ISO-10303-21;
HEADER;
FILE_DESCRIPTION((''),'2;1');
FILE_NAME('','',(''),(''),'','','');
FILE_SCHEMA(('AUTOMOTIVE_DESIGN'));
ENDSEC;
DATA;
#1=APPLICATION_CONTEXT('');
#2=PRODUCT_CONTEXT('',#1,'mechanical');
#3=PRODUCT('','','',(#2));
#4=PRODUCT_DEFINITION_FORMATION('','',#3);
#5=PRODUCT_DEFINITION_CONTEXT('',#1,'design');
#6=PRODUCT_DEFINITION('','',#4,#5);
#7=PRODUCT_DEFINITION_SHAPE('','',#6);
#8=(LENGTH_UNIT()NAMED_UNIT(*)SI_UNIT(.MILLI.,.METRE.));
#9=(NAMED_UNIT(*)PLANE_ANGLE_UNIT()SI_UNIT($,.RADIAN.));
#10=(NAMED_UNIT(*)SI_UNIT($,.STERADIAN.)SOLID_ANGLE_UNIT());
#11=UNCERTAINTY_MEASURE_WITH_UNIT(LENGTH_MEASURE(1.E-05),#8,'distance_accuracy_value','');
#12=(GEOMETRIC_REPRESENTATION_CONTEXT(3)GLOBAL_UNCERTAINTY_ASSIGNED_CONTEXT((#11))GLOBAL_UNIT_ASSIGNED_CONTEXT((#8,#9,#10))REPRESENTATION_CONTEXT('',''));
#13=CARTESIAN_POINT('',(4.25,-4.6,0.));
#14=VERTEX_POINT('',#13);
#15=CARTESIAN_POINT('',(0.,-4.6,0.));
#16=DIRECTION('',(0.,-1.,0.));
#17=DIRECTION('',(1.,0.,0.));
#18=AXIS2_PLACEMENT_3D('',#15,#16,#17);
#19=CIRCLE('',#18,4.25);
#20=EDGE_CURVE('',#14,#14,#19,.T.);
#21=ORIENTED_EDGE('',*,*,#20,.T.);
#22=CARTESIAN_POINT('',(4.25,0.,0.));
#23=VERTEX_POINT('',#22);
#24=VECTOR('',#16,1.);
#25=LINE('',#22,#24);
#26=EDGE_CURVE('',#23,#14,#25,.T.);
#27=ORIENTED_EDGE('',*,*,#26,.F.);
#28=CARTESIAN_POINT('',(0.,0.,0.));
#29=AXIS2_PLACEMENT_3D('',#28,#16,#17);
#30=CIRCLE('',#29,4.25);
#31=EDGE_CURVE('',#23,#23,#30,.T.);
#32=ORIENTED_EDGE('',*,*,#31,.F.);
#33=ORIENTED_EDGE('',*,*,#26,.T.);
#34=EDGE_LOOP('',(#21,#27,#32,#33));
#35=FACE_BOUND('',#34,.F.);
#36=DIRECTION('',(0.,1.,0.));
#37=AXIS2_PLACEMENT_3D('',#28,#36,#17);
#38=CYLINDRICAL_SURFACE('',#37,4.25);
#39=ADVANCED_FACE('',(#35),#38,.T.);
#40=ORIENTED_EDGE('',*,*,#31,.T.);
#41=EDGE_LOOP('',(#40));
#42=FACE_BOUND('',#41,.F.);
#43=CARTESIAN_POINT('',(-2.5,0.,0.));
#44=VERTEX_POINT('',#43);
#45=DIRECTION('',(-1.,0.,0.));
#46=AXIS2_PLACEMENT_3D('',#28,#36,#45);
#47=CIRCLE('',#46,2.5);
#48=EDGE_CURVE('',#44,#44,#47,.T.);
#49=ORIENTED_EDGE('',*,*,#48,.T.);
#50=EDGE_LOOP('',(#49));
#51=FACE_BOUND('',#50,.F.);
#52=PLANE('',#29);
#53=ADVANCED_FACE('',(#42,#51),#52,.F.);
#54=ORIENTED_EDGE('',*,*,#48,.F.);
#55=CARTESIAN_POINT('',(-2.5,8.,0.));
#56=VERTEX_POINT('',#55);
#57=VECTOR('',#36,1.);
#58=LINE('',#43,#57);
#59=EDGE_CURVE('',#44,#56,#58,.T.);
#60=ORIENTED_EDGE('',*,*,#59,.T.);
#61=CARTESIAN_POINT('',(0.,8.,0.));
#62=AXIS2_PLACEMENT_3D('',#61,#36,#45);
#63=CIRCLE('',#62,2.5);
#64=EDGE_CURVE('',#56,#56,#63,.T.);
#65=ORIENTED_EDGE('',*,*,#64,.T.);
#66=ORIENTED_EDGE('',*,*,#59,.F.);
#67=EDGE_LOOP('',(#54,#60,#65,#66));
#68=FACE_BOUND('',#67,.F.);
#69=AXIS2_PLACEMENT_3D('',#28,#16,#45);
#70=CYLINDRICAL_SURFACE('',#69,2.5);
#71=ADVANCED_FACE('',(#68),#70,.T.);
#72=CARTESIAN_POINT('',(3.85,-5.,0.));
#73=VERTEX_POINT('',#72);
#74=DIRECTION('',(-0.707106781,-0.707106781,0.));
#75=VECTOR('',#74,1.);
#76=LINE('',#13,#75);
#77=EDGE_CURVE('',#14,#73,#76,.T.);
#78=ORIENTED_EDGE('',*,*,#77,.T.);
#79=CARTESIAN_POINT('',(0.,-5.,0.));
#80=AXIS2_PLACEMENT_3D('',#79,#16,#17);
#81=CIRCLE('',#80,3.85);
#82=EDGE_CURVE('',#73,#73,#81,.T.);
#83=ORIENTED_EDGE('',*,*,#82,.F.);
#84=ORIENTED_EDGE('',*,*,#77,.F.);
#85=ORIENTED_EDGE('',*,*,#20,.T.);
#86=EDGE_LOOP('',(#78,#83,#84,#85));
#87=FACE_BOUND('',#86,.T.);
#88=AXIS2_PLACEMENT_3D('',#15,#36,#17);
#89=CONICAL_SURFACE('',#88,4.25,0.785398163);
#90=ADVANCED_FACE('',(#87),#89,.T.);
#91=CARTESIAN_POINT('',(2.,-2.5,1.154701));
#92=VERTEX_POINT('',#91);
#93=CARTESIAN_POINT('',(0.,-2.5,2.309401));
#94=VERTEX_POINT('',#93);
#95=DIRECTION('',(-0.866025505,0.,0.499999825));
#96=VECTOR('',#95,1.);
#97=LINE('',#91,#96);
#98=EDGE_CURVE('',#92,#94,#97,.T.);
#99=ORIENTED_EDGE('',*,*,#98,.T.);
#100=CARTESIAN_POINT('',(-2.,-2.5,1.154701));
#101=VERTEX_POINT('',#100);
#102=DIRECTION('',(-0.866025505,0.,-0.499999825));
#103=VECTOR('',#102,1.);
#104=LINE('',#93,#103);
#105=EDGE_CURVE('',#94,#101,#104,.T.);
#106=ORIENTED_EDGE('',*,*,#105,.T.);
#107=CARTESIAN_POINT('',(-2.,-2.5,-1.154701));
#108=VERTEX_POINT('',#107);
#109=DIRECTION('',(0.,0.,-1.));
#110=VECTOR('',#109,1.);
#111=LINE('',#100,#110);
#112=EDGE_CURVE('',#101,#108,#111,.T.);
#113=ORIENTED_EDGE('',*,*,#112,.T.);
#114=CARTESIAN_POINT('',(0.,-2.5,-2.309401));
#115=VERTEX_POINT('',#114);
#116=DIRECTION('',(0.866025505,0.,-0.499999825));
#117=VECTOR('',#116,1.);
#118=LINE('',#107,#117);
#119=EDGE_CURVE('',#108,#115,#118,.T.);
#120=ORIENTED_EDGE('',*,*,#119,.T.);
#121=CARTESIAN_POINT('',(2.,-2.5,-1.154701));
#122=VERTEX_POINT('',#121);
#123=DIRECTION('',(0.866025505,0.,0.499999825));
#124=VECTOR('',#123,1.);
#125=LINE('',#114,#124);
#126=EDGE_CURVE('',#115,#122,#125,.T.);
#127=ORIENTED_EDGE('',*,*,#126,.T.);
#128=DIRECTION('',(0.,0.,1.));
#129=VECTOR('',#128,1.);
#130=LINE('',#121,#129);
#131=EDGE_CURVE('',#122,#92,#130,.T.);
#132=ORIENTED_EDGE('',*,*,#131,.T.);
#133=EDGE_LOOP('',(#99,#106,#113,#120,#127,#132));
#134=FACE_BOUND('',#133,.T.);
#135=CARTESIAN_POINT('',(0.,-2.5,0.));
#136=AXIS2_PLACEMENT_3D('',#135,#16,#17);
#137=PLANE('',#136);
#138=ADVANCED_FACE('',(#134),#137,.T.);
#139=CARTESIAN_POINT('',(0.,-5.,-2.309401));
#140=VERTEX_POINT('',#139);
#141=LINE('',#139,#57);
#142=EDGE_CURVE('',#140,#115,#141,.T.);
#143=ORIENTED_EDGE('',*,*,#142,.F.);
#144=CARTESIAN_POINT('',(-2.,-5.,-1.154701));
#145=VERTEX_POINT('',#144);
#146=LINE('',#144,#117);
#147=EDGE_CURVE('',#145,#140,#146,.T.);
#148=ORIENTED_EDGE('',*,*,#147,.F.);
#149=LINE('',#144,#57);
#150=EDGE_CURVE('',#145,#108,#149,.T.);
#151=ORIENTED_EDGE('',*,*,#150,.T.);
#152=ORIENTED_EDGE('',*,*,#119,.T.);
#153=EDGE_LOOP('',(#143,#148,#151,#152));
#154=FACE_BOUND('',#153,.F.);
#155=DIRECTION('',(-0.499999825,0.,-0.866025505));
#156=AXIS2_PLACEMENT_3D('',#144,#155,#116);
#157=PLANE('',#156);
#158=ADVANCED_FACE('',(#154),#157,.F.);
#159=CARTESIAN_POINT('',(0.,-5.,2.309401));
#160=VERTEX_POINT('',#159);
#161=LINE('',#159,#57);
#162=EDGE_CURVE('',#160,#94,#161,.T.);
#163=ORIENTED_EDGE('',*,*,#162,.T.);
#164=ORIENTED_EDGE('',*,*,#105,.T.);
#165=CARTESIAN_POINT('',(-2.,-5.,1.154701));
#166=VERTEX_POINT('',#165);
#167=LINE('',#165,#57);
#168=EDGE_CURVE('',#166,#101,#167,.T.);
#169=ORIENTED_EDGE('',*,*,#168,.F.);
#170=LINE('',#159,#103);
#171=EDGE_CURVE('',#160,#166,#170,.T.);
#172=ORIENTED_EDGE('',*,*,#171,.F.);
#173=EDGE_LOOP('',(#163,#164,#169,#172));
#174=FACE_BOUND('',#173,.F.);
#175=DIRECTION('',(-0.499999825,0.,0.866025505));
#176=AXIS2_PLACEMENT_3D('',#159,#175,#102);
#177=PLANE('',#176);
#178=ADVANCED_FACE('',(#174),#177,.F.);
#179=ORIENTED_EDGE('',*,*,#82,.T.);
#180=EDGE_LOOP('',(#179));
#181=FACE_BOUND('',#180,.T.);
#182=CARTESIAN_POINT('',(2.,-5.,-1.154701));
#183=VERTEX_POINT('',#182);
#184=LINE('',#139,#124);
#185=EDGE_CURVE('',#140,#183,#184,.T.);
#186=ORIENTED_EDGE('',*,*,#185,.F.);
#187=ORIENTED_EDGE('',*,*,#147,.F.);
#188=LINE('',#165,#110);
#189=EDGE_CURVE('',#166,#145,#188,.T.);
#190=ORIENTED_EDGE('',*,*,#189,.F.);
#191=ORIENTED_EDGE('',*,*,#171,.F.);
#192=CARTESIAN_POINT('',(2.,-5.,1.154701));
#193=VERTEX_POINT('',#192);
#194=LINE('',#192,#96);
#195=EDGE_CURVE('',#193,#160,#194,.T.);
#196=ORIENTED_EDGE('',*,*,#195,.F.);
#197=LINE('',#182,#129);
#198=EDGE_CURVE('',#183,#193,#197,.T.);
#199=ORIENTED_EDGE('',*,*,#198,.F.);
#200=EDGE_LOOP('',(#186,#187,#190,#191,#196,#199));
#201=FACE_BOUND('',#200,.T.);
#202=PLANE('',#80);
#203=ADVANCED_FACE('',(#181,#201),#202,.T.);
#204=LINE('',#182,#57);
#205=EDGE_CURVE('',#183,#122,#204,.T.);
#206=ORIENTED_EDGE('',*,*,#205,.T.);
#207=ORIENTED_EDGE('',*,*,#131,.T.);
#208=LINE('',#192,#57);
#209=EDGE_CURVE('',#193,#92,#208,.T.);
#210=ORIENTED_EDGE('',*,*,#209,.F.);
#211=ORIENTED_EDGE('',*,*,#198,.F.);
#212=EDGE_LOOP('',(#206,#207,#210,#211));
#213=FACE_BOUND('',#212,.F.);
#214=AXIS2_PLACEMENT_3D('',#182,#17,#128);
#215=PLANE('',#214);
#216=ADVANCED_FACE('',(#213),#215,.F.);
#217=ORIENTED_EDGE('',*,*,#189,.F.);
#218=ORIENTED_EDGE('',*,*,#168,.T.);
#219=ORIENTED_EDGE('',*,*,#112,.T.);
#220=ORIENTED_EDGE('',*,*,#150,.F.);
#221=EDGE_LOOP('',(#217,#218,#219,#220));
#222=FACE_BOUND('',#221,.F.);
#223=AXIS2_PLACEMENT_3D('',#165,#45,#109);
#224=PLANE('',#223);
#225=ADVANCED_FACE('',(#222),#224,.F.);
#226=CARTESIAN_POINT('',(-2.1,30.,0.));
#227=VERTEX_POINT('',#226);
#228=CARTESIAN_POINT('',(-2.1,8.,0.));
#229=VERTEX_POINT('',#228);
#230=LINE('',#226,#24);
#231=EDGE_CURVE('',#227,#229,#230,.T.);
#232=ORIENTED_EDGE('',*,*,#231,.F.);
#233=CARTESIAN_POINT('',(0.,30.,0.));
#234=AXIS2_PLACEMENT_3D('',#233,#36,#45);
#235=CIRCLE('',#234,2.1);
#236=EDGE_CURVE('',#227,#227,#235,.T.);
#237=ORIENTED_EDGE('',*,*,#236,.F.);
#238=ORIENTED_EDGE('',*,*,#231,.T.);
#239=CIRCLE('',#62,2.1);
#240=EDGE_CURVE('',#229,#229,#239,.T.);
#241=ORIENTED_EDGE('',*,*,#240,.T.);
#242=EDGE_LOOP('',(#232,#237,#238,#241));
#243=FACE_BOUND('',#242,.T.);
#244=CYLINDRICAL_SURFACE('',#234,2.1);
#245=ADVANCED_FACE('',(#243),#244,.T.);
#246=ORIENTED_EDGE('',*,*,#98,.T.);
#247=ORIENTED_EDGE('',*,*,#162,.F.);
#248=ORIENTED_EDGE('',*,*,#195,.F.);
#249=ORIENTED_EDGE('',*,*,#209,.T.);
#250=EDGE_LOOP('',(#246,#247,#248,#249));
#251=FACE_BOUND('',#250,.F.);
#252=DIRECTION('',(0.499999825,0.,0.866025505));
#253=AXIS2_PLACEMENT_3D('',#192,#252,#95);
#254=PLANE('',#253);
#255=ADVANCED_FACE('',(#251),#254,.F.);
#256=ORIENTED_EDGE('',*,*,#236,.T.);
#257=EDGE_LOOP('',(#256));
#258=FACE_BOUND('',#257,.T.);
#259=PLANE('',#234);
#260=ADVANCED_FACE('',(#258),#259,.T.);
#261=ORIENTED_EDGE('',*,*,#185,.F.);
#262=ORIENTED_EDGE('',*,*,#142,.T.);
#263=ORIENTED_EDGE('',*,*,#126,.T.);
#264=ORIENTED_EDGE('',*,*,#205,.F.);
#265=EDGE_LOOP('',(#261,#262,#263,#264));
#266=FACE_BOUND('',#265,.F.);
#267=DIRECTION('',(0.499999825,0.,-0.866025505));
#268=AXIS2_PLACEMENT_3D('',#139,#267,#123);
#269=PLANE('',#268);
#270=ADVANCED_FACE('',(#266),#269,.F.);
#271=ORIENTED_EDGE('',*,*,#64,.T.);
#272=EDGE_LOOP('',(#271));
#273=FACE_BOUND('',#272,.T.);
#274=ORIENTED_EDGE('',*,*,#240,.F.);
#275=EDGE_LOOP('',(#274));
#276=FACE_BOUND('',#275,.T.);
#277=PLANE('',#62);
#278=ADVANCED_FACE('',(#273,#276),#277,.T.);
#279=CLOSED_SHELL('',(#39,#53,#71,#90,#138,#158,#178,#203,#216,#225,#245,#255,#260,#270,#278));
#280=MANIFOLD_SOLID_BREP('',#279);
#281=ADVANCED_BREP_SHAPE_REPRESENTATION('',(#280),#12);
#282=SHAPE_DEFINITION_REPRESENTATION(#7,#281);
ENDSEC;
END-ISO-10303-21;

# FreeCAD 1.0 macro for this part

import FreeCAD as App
import Part
import Sketcher

V = App.Vector
Q = App.Units.Quantity


def edges_at(feature, points):
    """Names of the edges that pass closest to the given points."""
    edges = feature.Shape.Edges
    near = lambda p: min(range(len(edges)), key=lambda i: edges[i].distToShape(Part.Vertex(*p))[0])
    return sorted({f"Edge{near(p) + 1}" for p in points})

doc = App.newDocument("Part")
body = doc.addObject("PartDesign::Body", "Body")

sketch1 = body.newObject("Sketcher::SketchObject", "Sketch")
sketch1.AttachmentSupport = (doc.getObject("XZ_Plane"), [""])
sketch1.MapMode = "FlatFace"
sketch1.addGeometry(Part.Circle(V(0, 0, 0), V(0, 0, 1), 4.2), False)
sketch1.addConstraint([
    Sketcher.Constraint("Coincident", 0, 3, -1, 1),
    Sketcher.Constraint("Diameter", 0, Q("8.5 mm")),
])
pad1 = body.newObject("PartDesign::Pad", "Pad")
pad1.Profile = sketch1
pad1.Length = 5

sketch2 = body.newObject("Sketcher::SketchObject", "Sketch001")
sketch2.AttachmentSupport = (doc.getObject("XZ_Plane"), [""])
sketch2.MapMode = "FlatFace"
sketch2.addGeometry(Part.Circle(V(0, 0, 0), V(0, 0, 1), 2.5), False)
sketch2.addConstraint([
    Sketcher.Constraint("Coincident", 0, 3, -1, 1),
    Sketcher.Constraint("Diameter", 0, Q("5 mm")),
])
pad2 = body.newObject("PartDesign::Pad", "Pad001")
pad2.Profile = sketch2
pad2.Length = 30
pad2.Reversed = True

sketch3 = body.newObject("Sketcher::SketchObject", "Sketch002")
sketch3.AttachmentSupport = (doc.getObject("XZ_Plane"), [""])
sketch3.MapMode = "FlatFace"
sketch3.AttachmentOffset = App.Placement(V(0, 0, -30), App.Rotation())
sketch3.addGeometry([
    Part.Circle(V(0, 0, 0), V(0, 0, 1), 2.5),
    Part.Circle(V(0, 0, 0), V(0, 0, 1), 2.1),
], False)
sketch3.addConstraint([
    Sketcher.Constraint("Coincident", 0, 3, -1, 1),
    Sketcher.Constraint("Coincident", 1, 3, -1, 1),
    Sketcher.Constraint("Diameter", 0, Q("5 mm")),
    Sketcher.Constraint("Diameter", 1, Q("4.2 mm")),
])
pocket1 = body.newObject("PartDesign::Pocket", "Pocket")
pocket1.Profile = sketch3
pocket1.Length = 22
pocket1.Reversed = True

sketch4 = body.newObject("Sketcher::SketchObject", "Sketch003")
sketch4.AttachmentSupport = (doc.getObject("XZ_Plane"), [""])
sketch4.MapMode = "FlatFace"
sketch4.AttachmentOffset = App.Placement(V(0, 0, 5), App.Rotation())
sketch4.addGeometry([
    Part.LineSegment(V(0, -2.3, 0), V(2, -1.2, 0)),
    Part.LineSegment(V(2, -1.2, 0), V(2, 1.2, 0)),
    Part.LineSegment(V(2, 1.2, 0), V(0, 2.3, 0)),
    Part.LineSegment(V(0, 2.3, 0), V(-2, 1.2, 0)),
    Part.LineSegment(V(-2, 1.2, 0), V(-2, -1.2, 0)),
    Part.LineSegment(V(-2, -1.2, 0), V(0, -2.3, 0)),
], False)
sketch4.addConstraint([
    Sketcher.Constraint("Coincident", 0, 2, 1, 1),
    Sketcher.Constraint("Coincident", 1, 2, 2, 1),
    Sketcher.Constraint("Coincident", 2, 2, 3, 1),
    Sketcher.Constraint("Coincident", 3, 2, 4, 1),
    Sketcher.Constraint("Coincident", 4, 2, 5, 1),
    Sketcher.Constraint("Coincident", 5, 2, 0, 1),
    Sketcher.Constraint("Vertical", 1),
    Sketcher.Constraint("Vertical", 4),
    Sketcher.Constraint("Symmetric", 0, 2, 3, 2, -1, 1),
    Sketcher.Constraint("Symmetric", 2, 2, 5, 2, -1, 1),
    Sketcher.Constraint("PointOnObject", 2, 2, -2),
    Sketcher.Constraint("Parallel", 2, 5),
    Sketcher.Constraint("Horizontal", 1, 2, 3, 2),
    Sketcher.Constraint("Angle", 0, Q("29.999988 deg")),
    Sketcher.Constraint("DistanceX", -1, 1, 0, 2, Q("2 mm")),
    Sketcher.Constraint("DistanceY", 1, 1, 1, 2, Q("2.309402 mm")),
])
pocket2 = body.newObject("PartDesign::Pocket", "Pocket001")
pocket2.Profile = sketch4
pocket2.Length = 2.5
doc.recompute()

chamfer = body.newObject("PartDesign::Chamfer", "Chamfer")
chamfer.Base = (pocket2, edges_at(pocket2, [(-4.25, -5, 0)]))
chamfer.Size = 0.4

doc.recompute()
